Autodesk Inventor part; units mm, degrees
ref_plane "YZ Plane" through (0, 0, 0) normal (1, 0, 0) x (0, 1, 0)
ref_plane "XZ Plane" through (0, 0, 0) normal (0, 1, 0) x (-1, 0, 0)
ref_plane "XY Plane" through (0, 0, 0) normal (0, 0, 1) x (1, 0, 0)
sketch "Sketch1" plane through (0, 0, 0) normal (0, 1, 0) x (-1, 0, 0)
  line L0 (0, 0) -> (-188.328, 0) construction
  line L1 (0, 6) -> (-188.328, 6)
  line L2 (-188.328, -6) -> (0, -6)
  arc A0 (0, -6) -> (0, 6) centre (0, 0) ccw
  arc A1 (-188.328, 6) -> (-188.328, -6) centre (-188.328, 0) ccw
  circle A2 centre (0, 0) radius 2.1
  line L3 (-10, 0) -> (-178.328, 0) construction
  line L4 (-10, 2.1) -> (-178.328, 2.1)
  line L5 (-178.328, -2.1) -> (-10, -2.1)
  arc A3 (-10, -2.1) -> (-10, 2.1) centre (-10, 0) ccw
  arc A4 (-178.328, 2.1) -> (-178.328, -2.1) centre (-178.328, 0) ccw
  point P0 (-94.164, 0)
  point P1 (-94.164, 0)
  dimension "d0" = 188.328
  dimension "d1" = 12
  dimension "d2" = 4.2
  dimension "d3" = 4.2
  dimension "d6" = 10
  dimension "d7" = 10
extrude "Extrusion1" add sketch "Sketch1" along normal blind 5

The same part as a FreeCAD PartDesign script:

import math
import FreeCAD as App
import Part
import Sketcher
from FreeCAD import Vector

doc = App.newDocument("Part")
body = doc.addObject("PartDesign::Body", "Body")

sketch1 = body.newObject("Sketcher::SketchObject", "Sketch")
sketch1.AttachmentSupport = (doc.getObject("XZ_Plane"), [""])
sketch1.MapMode = "FlatFace"
sketch1.addGeometry([
    Part.ArcOfCircle(Part.Circle(Vector(0, 0, 0), Vector(0, 0, 1), 6), math.radians(90), math.radians(270)),
    Part.LineSegment(Vector(0, 6, 0), Vector(188.3, 6, 0)),
    Part.ArcOfCircle(Part.Circle(Vector(188.3, 0, 0), Vector(0, 0, 1), 6), math.radians(-90), math.radians(90)),
    Part.LineSegment(Vector(188.3, -6, 0), Vector(0, -6, 0)),
    Part.LineSegment(Vector(178.3, 2.1, 0), Vector(10, 2.1, 0)),
    Part.ArcOfCircle(Part.Circle(Vector(10, 0, 0), Vector(0, 0, 1), 2.1), math.radians(90), math.radians(270)),
    Part.LineSegment(Vector(10, -2.1, 0), Vector(178.3, -2.1, 0)),
    Part.ArcOfCircle(Part.Circle(Vector(178.3, 0, 0), Vector(0, 0, 1), 2.1), math.radians(-90), math.radians(90)),
    Part.Circle(Vector(0, 0, 0), Vector(0, 0, 1), 2.1),
], False)
sketch1.addConstraint([
    Sketcher.Constraint("Tangent", 0, 1, 1, 1),
    Sketcher.Constraint("Tangent", 1, 2, 2, 2),
    Sketcher.Constraint("Tangent", 2, 1, 3, 1),
    Sketcher.Constraint("Tangent", 3, 2, 0, 2),
    Sketcher.Constraint("Tangent", 4, 2, 5, 1),
    Sketcher.Constraint("Tangent", 5, 2, 6, 1),
    Sketcher.Constraint("Tangent", 6, 2, 7, 1),
    Sketcher.Constraint("Tangent", 7, 2, 4, 1),
    Sketcher.Constraint("Horizontal", 1),
    Sketcher.Constraint("Horizontal", 3),
    Sketcher.Constraint("Horizontal", 4),
    Sketcher.Constraint("Horizontal", 6),
    Sketcher.Constraint("Coincident", 0, 3, -1, 1),
    Sketcher.Constraint("Coincident", 8, 3, -1, 1),
    Sketcher.Constraint("Equal", 7, 8),
    Sketcher.Constraint("PointOnObject", 5, 3, -1),
    Sketcher.Constraint("Radius", 0, 6.0),
    Sketcher.Constraint("Diameter", 8, 4.2),
    Sketcher.Constraint("DistanceX", -1, 1, 5, 3, 10.0),
    Sketcher.Constraint("DistanceX", 7, 3, 2, 3, 10.0),
    Sketcher.Constraint("DistanceX", 1, 1, 1, 2, 188.328),
])
pad1 = body.newObject("PartDesign::Pad", "Pad")
pad1.Profile = sketch1
pad1.Length = 5
pad1.Reversed = True

doc.recompute()
